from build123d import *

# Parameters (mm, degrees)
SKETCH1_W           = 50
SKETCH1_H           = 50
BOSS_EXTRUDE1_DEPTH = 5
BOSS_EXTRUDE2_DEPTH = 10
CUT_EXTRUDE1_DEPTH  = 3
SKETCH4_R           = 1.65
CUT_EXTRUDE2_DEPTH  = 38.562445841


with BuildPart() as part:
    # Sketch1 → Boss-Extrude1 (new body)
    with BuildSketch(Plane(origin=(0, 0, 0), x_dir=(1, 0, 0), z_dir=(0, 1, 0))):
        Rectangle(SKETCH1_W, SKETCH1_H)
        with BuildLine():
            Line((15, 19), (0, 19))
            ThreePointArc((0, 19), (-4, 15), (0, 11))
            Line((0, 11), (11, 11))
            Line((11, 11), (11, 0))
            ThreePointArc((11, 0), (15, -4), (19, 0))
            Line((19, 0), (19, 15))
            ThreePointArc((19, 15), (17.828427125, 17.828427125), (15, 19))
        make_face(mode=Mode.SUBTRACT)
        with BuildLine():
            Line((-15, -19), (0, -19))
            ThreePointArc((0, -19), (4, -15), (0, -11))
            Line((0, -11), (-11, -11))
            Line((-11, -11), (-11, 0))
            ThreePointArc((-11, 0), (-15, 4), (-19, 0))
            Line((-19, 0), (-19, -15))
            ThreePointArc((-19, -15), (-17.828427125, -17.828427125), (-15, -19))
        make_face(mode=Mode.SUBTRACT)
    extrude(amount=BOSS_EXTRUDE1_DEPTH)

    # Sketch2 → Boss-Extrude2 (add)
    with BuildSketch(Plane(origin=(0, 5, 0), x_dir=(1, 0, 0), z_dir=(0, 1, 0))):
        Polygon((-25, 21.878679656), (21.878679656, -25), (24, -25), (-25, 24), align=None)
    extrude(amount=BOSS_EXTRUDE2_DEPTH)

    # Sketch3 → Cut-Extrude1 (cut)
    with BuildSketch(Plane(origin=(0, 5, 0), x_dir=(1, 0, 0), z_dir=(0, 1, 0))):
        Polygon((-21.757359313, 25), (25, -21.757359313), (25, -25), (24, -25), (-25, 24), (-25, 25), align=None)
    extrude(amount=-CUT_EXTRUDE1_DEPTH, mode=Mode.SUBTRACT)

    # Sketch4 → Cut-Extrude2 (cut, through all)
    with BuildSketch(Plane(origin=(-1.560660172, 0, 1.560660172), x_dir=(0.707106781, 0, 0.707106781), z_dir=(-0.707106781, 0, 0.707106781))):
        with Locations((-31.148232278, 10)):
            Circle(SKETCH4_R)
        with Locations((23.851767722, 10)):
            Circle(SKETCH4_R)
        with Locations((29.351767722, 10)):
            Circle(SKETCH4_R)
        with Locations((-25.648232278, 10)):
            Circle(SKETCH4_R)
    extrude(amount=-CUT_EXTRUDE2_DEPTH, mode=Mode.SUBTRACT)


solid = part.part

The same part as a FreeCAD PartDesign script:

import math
import FreeCAD as App
import Part
import Sketcher

V = App.Vector
Q = App.Units.Quantity


def add_polygon(sketch, points):
    """Adds a closed chain of lines whose ends are joined by coincident constraints."""
    first, n = sketch.GeometryCount, len(points)
    for a, b in zip(points, points[1:] + points[:1]):
        sketch.addGeometry(Part.LineSegment(App.Vector(*a, 0), App.Vector(*b, 0)), False)
    for i in range(n):
        sketch.addConstraint(Sketcher.Constraint("Coincident", first + i, 2, first + (i + 1) % n, 1))

doc = App.newDocument("Part")
params = doc.addObject("Spreadsheet::Sheet", "Params")
for row, (alias, value) in enumerate([
    ("sketch1_radius", "4 mm"),
    ("sketch1_width", "50 mm"),
    ("sketch1_width2", "15 mm"),
    ("pad1_length", "5 mm"),
    ("pad2_length", "10 mm"),
    ("sketch3_width", "1 mm"),
    ("pocket1_length", "3 mm"),
    ("sketch4_diameter", "3.3 mm"),
], start=1):
    params.set(f"A{row}", alias)
    params.set(f"B{row}", "=" + value)
    params.setAlias(f"B{row}", alias)

body = doc.addObject("PartDesign::Body", "Body")

# Sketch on XZ plane
sketch1 = doc.addObject("Sketcher::SketchObject", "Sketch")
body.addObject(sketch1)
sketch1.AttachmentSupport = (doc.XZ_Plane, [""])
sketch1.MapMode = "FlatFace"
add_polygon(sketch1, [(-25, -25), (-25, 25), (25, 25), (25, -25)])  # lines 0-3
sketch1.addGeometry(Part.LineSegment(V(0, 19, 0), V(-15, 19, 0)), False)  # 4
sketch1.addGeometry(Part.ArcOfCircle(Part.Circle(V(-15, 15, 0), V(0, 0, 1), 4), math.radians(90), math.radians(180)), False)  # 5
sketch1.addGeometry(Part.LineSegment(V(-19, 15, 0), V(-19, 0, 0)), False)  # 6
sketch1.addGeometry(Part.ArcOfCircle(Part.Circle(V(-15, 0, 0), V(0, 0, 1), 4), math.radians(180), math.radians(360)), False)  # 7
sketch1.addGeometry(Part.LineSegment(V(-11, 0, 0), V(-11, 11, 0)), False)  # 8
sketch1.addGeometry(Part.LineSegment(V(-11, 11, 0), V(0, 11, 0)), False)  # 9
sketch1.addGeometry(Part.ArcOfCircle(Part.Circle(V(0, 15, 0), V(0, 0, 1), 4), math.radians(-90), math.radians(90)), False)  # 10
sketch1.addGeometry(Part.LineSegment(V(0, -19, 0), V(15, -19, 0)), False)  # 11
sketch1.addGeometry(Part.ArcOfCircle(Part.Circle(V(15, -15, 0), V(0, 0, 1), 4), math.radians(-90), math.radians(0)), False)  # 12
sketch1.addGeometry(Part.LineSegment(V(19, -15, 0), V(19, 0, 0)), False)  # 13
sketch1.addGeometry(Part.ArcOfCircle(Part.Circle(V(15, 0, 0), V(0, 0, 1), 4), math.radians(0), math.radians(180)), False)  # 14
sketch1.addGeometry(Part.LineSegment(V(11, 0, 0), V(11, -11, 0)), False)  # 15
sketch1.addGeometry(Part.LineSegment(V(11, -11, 0), V(0, -11, 0)), False)  # 16
sketch1.addGeometry(Part.ArcOfCircle(Part.Circle(V(0, -15, 0), V(0, 0, 1), 4), math.radians(90), math.radians(270)), False)  # 17
sketch1.addConstraint([
    Sketcher.Constraint("Tangent", 4, 2, 5, 1),
    Sketcher.Constraint("Tangent", 5, 2, 6, 1),
    Sketcher.Constraint("Tangent", 6, 2, 7, 1),
    Sketcher.Constraint("Tangent", 7, 2, 8, 1),
    Sketcher.Constraint("Coincident", 8, 2, 9, 1),
    Sketcher.Constraint("Tangent", 9, 2, 10, 1),
    Sketcher.Constraint("Tangent", 10, 2, 4, 1),
    Sketcher.Constraint("Tangent", 11, 2, 12, 1),
    Sketcher.Constraint("Tangent", 12, 2, 13, 1),
    Sketcher.Constraint("Tangent", 13, 2, 14, 1),
    Sketcher.Constraint("Tangent", 14, 2, 15, 1),
    Sketcher.Constraint("Coincident", 15, 2, 16, 1),
    Sketcher.Constraint("Tangent", 16, 2, 17, 1),
    Sketcher.Constraint("Tangent", 17, 2, 11, 1),
    Sketcher.Constraint("Vertical", 0),
    Sketcher.Constraint("Horizontal", 1),
    Sketcher.Constraint("Vertical", 2),
    Sketcher.Constraint("Horizontal", 3),
    Sketcher.Constraint("Horizontal", 4),
    Sketcher.Constraint("Vertical", 6),
    Sketcher.Constraint("Vertical", 8),
    Sketcher.Constraint("Horizontal", 9),
    Sketcher.Constraint("Horizontal", 11),
    Sketcher.Constraint("Vertical", 13),
    Sketcher.Constraint("Vertical", 15),
    Sketcher.Constraint("Horizontal", 16),
    Sketcher.Constraint("Equal", 5, 7),
    Sketcher.Constraint("Equal", 7, 10),
    Sketcher.Constraint("Equal", 10, 12),
    Sketcher.Constraint("Equal", 12, 14),
    Sketcher.Constraint("Equal", 14, 17),
    Sketcher.Constraint("Symmetric", 5, 3, 12, 3, -1, 1),
    Sketcher.Constraint("Symmetric", 0, 2, 2, 2, -1, 1),
    Sketcher.Constraint("PointOnObject", 7, 3, -1),
    Sketcher.Constraint("PointOnObject", 10, 3, -2),
    Sketcher.Constraint("PointOnObject", 14, 3, -1),
    Sketcher.Constraint("PointOnObject", 17, 3, -2),
    Sketcher.Constraint("Equal", 3, 0),
    Sketcher.Constraint("Equal", 11, 6),
    Sketcher.Constraint("Radius", 5, Q("4 mm")),
    Sketcher.Constraint("DistanceX", 1, 1, 1, 2, Q("50 mm")),
    Sketcher.Constraint("DistanceX", 4, 2, 4, 1, Q("15 mm")),
])
sketch1.setExpression("Constraints[43]", "Params.sketch1_radius")
sketch1.setExpression("Constraints[44]", "Params.sketch1_width")
sketch1.setExpression("Constraints[45]", "Params.sketch1_width2")
pad1 = doc.addObject("PartDesign::Pad", "Pad")
body.addObject(pad1)
pad1.Profile = sketch1
pad1.setExpression("Length", "Params.pad1_length")
pad1.Reversed = True

# Sketch on XZ plane
sketch2 = doc.addObject("Sketcher::SketchObject", "Sketch001")
body.addObject(sketch2)
sketch2.AttachmentSupport = (doc.XZ_Plane, [""])
sketch2.MapMode = "FlatFace"
sketch2.AttachmentOffset = App.Placement(V(0, 0, -5), App.Rotation())
add_polygon(sketch2, [(-25, -21.87868), (21.87868, 25), (24, 25), (-25, -24)])  # lines 0-3
sketch2.addConstraint([
    Sketcher.Constraint("Horizontal", 1),
    Sketcher.Constraint("Vertical", 3),
    Sketcher.Constraint("Parallel", 0, 2),
    Sketcher.Constraint("Equal", 1, 3),
    Sketcher.Constraint("DistanceY", -1, 1, 0, 2, Q("25 mm")),
    Sketcher.Constraint("DistanceX", -1, 1, 1, 2, Q("24 mm")),
    Sketcher.Constraint("DistanceX", 2, 2, -1, 1, Q("25 mm")),
    Sketcher.Constraint("DistanceX", 1, 1, 1, 2, Q("2.12132 mm")),
])
pad2 = doc.addObject("PartDesign::Pad", "Pad001")
body.addObject(pad2)
pad2.Profile = sketch2
pad2.setExpression("Length", "Params.pad2_length")
pad2.Reversed = True

# Sketch on XZ plane
sketch3 = doc.addObject("Sketcher::SketchObject", "Sketch002")
body.addObject(sketch3)
sketch3.AttachmentSupport = (doc.XZ_Plane, [""])
sketch3.MapMode = "FlatFace"
sketch3.AttachmentOffset = App.Placement(V(0, 0, -5), App.Rotation())
add_polygon(sketch3, [(25, 21.757359), (-21.757359, -25), (-25, -25), (-25, -24), (24, 25), (25, 25)])  # lines 0-5
sketch3.addConstraint([
    Sketcher.Constraint("Horizontal", 1),
    Sketcher.Constraint("Vertical", 2),
    Sketcher.Constraint("Horizontal", 4),
    Sketcher.Constraint("Vertical", 5),
    Sketcher.Constraint("Symmetric", 1, 2, 4, 2, -1, 1),
    Sketcher.Constraint("Parallel", 0, 3),
    Sketcher.Constraint("Equal", 4, 2),
    Sketcher.Constraint("Equal", 1, 5),
    Sketcher.Constraint("DistanceX", 4, 1, 4, 2, Q("1 mm")),
    Sketcher.Constraint("DistanceY", 0, 2, -1, 1, Q("25 mm")),
    Sketcher.Constraint("DistanceX", 1, 2, 1, 1, Q("3.242641 mm")),
])
sketch3.setExpression("Constraints[14]", "Params.sketch3_width")
pocket1 = doc.addObject("PartDesign::Pocket", "Pocket")
body.addObject(pocket1)
pocket1.Profile = sketch3
pocket1.setExpression("Length", "Params.pocket1_length")
pocket1.Reversed = True

# Sketch on an angled plane
sketch4 = doc.addObject("Sketcher::SketchObject", "Sketch003")
body.addObject(sketch4)
sketch4.Placement = App.Placement(V(-1.56066, 0, 1.56066), App.Rotation(V(0.707106781, 0, 0.707106781), V(0, 0.999999999, 0), V(-0.707106781, 0, 0.707106781), "ZXY"))
sketch4.addGeometry([
    Part.Circle(V(-31.148232, 10, 0), V(0, 0, 1), 1.65),
    Part.Circle(V(23.851768, 10, 0), V(0, 0, 1), 1.65),
    Part.Circle(V(29.351768, 10, 0), V(0, 0, 1), 1.65),
    Part.Circle(V(-25.648232, 10, 0), V(0, 0, 1), 1.65),
], False)
sketch4.addConstraint([
    Sketcher.Constraint("Equal", 0, 1),
    Sketcher.Constraint("Equal", 1, 2),
    Sketcher.Constraint("Equal", 2, 3),
    Sketcher.Constraint("Horizontal", 0, 3, 1, 3),
    Sketcher.Constraint("Horizontal", 1, 3, 2, 3),
    Sketcher.Constraint("Horizontal", 2, 3, 3, 3),
    Sketcher.Constraint("Diameter", 0, Q("3.3 mm")),
    Sketcher.Constraint("DistanceY", -1, 1, 0, 3, Q("10 mm")),
    Sketcher.Constraint("DistanceX", 0, 3, 1, 3, Q("55 mm")),
    Sketcher.Constraint("DistanceX", 3, 3, 2, 3, Q("55 mm")),
    Sketcher.Constraint("DistanceX", 1, 3, 2, 3, Q("5.5 mm")),
    Sketcher.Constraint("DistanceX", 0, 3, -1, 1, Q("31.148232 mm")),
])
sketch4.setExpression("Constraints[6]", "Params.sketch4_diameter")
pocket2 = doc.addObject("PartDesign::Pocket", "Pocket001")
body.addObject(pocket2)
pocket2.Profile = sketch4
pocket2.Type = "ThroughAll"

doc.recompute()
